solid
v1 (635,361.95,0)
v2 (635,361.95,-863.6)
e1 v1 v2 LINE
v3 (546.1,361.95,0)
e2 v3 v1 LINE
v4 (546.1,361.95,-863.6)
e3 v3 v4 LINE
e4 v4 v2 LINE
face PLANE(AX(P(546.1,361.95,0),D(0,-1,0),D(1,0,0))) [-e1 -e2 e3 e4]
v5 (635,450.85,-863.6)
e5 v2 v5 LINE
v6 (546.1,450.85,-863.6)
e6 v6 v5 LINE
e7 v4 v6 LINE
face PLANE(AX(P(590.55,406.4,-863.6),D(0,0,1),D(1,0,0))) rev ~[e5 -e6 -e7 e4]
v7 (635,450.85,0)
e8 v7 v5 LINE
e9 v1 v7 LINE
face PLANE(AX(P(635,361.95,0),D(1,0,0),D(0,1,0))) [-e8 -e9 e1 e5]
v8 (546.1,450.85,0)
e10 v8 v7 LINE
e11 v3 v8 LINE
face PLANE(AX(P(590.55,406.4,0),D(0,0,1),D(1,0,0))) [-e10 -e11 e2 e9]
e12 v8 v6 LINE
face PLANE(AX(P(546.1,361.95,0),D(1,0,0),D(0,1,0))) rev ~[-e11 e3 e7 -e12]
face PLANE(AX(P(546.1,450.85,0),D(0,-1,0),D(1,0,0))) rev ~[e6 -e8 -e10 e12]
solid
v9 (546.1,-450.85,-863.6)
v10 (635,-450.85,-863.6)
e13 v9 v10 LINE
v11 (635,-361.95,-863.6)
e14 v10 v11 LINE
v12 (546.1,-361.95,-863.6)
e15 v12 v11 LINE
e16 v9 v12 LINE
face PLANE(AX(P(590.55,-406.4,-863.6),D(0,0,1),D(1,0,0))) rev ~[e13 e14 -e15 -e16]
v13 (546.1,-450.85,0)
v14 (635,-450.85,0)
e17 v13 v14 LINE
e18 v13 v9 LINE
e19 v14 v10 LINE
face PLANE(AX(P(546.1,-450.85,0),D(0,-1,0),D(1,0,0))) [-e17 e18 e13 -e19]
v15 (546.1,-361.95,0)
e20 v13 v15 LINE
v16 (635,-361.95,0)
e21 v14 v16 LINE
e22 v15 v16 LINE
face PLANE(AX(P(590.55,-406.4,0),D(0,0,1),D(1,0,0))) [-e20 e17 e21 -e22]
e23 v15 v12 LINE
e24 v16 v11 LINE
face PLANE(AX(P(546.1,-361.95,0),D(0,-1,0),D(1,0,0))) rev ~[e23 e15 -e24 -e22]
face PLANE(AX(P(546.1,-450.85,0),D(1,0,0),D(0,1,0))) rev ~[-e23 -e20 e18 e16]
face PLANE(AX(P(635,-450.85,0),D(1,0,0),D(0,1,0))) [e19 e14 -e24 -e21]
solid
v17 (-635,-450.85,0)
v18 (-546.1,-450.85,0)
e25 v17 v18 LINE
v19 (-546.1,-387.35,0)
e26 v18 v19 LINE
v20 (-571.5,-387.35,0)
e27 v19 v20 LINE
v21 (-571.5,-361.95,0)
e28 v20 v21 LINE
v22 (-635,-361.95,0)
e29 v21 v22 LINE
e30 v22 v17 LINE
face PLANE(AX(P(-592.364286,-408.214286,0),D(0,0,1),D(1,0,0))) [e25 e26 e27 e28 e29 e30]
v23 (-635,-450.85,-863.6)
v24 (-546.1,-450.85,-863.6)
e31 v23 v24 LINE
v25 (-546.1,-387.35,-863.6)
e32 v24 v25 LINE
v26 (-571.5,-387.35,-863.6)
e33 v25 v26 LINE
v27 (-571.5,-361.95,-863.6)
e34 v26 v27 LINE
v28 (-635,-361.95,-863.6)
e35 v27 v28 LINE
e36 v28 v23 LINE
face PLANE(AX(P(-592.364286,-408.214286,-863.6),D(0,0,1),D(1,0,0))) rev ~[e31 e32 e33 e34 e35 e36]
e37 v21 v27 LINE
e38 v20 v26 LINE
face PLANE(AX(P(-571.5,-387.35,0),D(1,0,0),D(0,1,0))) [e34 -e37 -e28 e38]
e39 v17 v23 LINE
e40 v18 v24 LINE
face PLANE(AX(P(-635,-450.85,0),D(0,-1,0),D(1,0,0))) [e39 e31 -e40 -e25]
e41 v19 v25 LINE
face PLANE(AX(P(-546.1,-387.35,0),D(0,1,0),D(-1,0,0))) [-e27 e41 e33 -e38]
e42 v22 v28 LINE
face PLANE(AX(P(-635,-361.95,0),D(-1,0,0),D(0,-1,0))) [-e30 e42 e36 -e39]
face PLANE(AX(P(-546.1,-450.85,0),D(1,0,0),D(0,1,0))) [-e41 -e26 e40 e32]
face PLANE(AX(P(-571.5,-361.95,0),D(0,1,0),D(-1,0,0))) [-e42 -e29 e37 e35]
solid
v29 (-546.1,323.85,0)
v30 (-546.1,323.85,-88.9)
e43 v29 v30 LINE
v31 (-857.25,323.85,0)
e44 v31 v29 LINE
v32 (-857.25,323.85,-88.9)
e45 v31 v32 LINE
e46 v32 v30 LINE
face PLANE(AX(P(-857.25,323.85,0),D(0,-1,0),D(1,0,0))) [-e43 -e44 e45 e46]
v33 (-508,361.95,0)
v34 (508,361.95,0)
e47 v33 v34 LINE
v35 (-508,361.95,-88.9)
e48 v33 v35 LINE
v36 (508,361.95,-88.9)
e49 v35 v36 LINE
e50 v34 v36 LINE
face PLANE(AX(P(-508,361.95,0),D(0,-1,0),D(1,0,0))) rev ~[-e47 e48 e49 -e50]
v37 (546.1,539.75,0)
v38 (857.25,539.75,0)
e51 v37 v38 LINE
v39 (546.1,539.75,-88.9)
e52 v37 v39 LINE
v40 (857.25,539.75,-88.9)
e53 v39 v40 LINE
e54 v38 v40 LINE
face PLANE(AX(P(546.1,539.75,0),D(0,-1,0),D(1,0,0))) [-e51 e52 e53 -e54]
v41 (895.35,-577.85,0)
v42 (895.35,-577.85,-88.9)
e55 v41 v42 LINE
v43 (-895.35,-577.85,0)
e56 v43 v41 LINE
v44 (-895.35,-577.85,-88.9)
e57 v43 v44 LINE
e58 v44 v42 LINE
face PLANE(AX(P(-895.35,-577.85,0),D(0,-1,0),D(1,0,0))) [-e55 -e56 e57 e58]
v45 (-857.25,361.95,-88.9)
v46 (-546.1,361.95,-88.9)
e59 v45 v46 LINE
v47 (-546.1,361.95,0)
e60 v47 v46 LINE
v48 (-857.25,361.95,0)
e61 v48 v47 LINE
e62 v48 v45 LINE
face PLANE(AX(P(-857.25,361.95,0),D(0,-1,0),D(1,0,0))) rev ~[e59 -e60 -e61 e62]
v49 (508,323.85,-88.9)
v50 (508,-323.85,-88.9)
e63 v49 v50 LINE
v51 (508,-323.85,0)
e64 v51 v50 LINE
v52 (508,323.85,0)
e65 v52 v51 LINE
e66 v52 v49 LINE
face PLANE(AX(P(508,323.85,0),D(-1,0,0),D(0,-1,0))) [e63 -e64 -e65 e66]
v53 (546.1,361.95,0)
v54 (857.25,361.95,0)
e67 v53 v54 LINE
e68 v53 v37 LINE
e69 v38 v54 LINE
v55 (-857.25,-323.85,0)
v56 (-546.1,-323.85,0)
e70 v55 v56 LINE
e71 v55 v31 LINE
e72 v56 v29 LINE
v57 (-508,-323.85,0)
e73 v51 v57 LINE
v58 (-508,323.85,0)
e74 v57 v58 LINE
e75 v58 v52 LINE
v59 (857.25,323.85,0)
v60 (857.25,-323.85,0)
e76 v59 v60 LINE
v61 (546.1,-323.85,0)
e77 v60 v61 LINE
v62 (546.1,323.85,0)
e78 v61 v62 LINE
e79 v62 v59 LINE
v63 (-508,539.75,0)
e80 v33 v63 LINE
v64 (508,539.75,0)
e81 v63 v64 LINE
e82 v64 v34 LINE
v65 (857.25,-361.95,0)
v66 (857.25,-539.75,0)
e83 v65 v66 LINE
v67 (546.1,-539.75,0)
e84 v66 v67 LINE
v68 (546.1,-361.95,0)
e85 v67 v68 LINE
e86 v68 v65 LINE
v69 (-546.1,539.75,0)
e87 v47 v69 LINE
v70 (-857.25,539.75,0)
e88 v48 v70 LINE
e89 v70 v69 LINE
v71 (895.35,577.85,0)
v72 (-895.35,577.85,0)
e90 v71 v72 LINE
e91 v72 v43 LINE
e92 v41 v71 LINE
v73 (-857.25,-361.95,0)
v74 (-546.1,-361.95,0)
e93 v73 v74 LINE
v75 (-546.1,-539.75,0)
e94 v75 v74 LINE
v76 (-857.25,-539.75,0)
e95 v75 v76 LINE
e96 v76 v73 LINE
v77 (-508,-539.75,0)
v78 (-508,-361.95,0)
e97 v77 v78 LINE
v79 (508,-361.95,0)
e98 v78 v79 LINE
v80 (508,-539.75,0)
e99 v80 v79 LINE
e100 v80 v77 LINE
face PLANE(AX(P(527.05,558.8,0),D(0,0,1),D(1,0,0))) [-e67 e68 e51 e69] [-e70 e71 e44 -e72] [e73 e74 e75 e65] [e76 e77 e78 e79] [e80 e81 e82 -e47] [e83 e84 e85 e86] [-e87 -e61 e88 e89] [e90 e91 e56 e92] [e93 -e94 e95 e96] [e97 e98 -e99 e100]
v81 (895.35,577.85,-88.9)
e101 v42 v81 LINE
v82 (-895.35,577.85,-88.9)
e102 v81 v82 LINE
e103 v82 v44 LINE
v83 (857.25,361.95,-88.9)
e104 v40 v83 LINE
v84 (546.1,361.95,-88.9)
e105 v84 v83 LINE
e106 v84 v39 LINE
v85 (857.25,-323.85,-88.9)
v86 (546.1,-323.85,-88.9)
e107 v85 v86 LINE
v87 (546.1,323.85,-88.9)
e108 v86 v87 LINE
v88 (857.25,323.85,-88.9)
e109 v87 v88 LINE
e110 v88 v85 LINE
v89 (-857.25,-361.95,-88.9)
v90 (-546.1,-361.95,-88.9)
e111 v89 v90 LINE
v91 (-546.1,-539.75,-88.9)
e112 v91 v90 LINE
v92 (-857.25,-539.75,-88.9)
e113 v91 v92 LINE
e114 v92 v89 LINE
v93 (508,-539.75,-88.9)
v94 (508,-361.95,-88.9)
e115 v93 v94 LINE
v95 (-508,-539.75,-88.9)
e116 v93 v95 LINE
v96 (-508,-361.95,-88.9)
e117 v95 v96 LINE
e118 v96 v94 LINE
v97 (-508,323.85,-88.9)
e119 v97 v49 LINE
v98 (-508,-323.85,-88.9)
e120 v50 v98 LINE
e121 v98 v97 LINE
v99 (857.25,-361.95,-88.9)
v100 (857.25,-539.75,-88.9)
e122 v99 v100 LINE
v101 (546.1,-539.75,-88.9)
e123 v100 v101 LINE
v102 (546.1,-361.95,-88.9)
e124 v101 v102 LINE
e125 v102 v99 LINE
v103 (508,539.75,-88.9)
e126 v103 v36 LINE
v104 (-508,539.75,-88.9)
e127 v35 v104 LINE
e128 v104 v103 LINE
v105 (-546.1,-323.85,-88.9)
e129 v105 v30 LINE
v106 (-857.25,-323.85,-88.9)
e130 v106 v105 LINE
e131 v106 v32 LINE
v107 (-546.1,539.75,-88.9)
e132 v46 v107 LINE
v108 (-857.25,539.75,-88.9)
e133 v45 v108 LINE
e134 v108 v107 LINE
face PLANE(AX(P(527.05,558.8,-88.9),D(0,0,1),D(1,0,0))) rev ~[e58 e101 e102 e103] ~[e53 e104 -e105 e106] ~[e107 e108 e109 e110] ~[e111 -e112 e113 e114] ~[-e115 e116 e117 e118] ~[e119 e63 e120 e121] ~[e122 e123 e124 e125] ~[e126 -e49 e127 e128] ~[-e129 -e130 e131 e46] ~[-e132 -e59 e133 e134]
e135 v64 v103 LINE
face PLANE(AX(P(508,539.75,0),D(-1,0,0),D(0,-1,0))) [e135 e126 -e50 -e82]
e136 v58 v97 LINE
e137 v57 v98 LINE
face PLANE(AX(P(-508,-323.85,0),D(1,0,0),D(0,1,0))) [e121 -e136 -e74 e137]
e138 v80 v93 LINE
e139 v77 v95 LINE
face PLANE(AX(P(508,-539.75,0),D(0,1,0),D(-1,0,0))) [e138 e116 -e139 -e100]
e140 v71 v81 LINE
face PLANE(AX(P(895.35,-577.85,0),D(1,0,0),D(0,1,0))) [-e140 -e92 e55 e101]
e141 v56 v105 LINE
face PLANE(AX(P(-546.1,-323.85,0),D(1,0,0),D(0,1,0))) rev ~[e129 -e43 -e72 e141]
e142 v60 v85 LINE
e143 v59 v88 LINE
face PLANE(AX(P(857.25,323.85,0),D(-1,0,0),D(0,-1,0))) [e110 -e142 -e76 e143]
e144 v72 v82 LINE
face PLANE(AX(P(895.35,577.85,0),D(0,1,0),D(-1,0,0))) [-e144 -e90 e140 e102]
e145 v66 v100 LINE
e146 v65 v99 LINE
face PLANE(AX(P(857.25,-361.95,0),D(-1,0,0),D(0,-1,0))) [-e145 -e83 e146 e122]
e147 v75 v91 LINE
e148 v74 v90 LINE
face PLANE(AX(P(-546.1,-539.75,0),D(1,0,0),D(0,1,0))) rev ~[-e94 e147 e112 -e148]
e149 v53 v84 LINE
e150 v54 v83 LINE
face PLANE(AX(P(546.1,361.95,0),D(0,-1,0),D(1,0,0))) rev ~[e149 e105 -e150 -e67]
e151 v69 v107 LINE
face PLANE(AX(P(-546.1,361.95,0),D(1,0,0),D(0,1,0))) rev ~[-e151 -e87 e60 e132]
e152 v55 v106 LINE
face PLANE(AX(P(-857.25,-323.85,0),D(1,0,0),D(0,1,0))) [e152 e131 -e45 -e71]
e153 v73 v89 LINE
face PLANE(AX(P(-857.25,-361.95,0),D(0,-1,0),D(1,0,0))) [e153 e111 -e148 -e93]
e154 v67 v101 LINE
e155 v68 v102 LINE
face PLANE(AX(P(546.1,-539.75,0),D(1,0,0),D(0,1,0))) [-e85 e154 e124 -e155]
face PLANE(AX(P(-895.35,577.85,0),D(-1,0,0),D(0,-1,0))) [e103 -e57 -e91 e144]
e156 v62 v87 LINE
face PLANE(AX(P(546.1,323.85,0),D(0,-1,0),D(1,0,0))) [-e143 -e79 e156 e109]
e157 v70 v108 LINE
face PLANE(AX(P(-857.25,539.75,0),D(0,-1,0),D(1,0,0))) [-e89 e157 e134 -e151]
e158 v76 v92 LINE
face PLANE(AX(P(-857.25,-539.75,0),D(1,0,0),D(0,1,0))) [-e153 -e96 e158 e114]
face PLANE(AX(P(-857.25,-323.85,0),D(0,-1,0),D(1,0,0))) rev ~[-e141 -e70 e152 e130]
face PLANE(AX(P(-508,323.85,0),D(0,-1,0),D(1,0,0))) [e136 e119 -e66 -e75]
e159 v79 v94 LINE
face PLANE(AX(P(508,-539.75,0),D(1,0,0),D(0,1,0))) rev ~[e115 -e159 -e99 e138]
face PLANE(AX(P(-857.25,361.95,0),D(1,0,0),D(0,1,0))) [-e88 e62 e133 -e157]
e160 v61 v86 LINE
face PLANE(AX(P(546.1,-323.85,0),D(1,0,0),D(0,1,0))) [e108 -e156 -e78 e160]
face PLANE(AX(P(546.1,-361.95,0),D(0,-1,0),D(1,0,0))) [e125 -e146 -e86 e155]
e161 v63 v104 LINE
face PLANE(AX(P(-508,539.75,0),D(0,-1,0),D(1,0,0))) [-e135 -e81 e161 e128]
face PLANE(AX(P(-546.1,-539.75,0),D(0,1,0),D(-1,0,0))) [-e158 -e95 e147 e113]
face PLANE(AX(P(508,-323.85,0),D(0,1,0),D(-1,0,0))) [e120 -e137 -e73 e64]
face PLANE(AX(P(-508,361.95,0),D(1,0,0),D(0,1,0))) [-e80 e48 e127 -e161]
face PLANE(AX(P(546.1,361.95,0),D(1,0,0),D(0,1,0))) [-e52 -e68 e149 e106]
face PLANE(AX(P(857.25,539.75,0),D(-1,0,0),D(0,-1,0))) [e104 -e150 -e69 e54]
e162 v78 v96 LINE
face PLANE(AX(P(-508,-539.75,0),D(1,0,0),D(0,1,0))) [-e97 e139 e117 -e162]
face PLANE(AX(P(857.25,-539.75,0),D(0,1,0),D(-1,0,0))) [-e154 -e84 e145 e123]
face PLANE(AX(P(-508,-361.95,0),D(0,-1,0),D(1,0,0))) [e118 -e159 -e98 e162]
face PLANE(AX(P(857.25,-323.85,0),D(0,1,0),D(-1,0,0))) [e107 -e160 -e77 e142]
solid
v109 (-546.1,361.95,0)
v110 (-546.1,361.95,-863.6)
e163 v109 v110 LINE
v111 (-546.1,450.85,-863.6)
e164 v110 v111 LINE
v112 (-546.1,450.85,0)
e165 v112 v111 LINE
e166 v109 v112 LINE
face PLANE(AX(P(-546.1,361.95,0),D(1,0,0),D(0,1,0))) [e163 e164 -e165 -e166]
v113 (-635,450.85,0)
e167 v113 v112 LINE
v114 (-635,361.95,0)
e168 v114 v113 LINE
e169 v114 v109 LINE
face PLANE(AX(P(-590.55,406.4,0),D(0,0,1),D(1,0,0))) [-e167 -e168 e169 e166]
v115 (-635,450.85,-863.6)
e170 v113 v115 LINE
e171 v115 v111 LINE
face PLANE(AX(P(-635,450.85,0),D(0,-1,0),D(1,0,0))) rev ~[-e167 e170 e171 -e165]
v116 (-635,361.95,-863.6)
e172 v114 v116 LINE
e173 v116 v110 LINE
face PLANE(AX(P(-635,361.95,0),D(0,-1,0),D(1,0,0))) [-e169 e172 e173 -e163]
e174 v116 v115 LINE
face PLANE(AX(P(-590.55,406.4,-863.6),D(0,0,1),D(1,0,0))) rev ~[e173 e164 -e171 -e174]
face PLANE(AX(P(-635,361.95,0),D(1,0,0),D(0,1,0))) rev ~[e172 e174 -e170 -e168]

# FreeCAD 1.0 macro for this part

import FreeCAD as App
import Part
import Sketcher
from FreeCAD import Vector
Q = App.Units.Quantity


def add_polygon(sketch, points):
    """Adds a closed chain of lines whose ends are joined by coincident constraints."""
    first, n = sketch.GeometryCount, len(points)
    for a, b in zip(points, points[1:] + points[:1]):
        sketch.addGeometry(Part.LineSegment(App.Vector(*a, 0), App.Vector(*b, 0)), False)
    for i in range(n):
        sketch.addConstraint(Sketcher.Constraint("Coincident", first + i, 2, first + (i + 1) % n, 1))

doc = App.newDocument("Part")
body = doc.addObject("PartDesign::Body", "Body")

sketch1 = body.newObject("Sketcher::SketchObject", "Sketch")
sketch1.AttachmentSupport = (doc.getObject("XY_Plane"), [""])
sketch1.MapMode = "FlatFace"
add_polygon(sketch1, [(895.35, -577.85), (895.35, 577.85), (-895.35, 577.85), (-895.35, -577.85)])
add_polygon(sketch1, [(-857.25, -361.95), (-546.1, -361.95), (-546.1, -539.75), (-857.25, -539.75)])
add_polygon(sketch1, [(-508, -361.95), (508, -361.95), (508, -539.75), (-508, -539.75)])
add_polygon(sketch1, [(-546.1, 323.85), (-546.1, -323.85), (-857.25, -323.85), (-857.25, 323.85)])
add_polygon(sketch1, [(-546.1, 361.95), (-857.25, 361.95), (-857.25, 539.75), (-546.1, 539.75)])
add_polygon(sketch1, [(546.1, -539.75), (546.1, -361.95), (857.25, -361.95), (857.25, -539.75)])
add_polygon(sketch1, [(-508, -323.85), (-508, 323.85), (508, 323.85), (508, -323.85)])
add_polygon(sketch1, [(-508, 361.95), (-508, 539.75), (508, 539.75), (508, 361.95)])
add_polygon(sketch1, [(546.1, 539.75), (857.25, 539.75), (857.25, 361.95), (546.1, 361.95)])
add_polygon(sketch1, [(857.25, 323.85), (857.25, -323.85), (546.1, -323.85), (546.1, 323.85)])
sketch1.addConstraint([
    Sketcher.Constraint("Vertical", 0),
    Sketcher.Constraint("Horizontal", 1),
    Sketcher.Constraint("Vertical", 2),
    Sketcher.Constraint("Horizontal", 3),
    Sketcher.Constraint("Horizontal", 4),
    Sketcher.Constraint("Vertical", 5),
    Sketcher.Constraint("Horizontal", 6),
    Sketcher.Constraint("Vertical", 7),
    Sketcher.Constraint("Horizontal", 8),
    Sketcher.Constraint("Vertical", 9),
    Sketcher.Constraint("Horizontal", 10),
    Sketcher.Constraint("Vertical", 11),
    Sketcher.Constraint("Vertical", 12),
    Sketcher.Constraint("Horizontal", 13),
    Sketcher.Constraint("Vertical", 14),
    Sketcher.Constraint("Horizontal", 15),
    Sketcher.Constraint("Horizontal", 16),
    Sketcher.Constraint("Vertical", 17),
    Sketcher.Constraint("Horizontal", 18),
    Sketcher.Constraint("Vertical", 19),
    Sketcher.Constraint("Vertical", 20),
    Sketcher.Constraint("Horizontal", 21),
    Sketcher.Constraint("Vertical", 22),
    Sketcher.Constraint("Horizontal", 23),
    Sketcher.Constraint("Vertical", 24),
    Sketcher.Constraint("Horizontal", 25),
    Sketcher.Constraint("Vertical", 26),
    Sketcher.Constraint("Horizontal", 27),
    Sketcher.Constraint("Vertical", 28),
    Sketcher.Constraint("Horizontal", 29),
    Sketcher.Constraint("Vertical", 30),
    Sketcher.Constraint("Horizontal", 31),
    Sketcher.Constraint("Horizontal", 32),
    Sketcher.Constraint("Vertical", 33),
    Sketcher.Constraint("Horizontal", 34),
    Sketcher.Constraint("Vertical", 35),
    Sketcher.Constraint("Vertical", 36),
    Sketcher.Constraint("Horizontal", 37),
    Sketcher.Constraint("Vertical", 38),
    Sketcher.Constraint("Horizontal", 39),
    Sketcher.Constraint("Symmetric", 0, 2, 2, 2, -1, 1),
    Sketcher.Constraint("Symmetric", 19, 2, 20, 2, -1, 1),
    Sketcher.Constraint("Symmetric", 17, 2, 22, 2, -1, 1),
    Sketcher.Constraint("Symmetric", 24, 2, 26, 2, -1, 1),
    Sketcher.Constraint("Symmetric", 9, 2, 28, 2, -1, 1),
    Sketcher.Constraint("Symmetric", 11, 2, 30, 2, -1, 1),
    Sketcher.Constraint("Symmetric", 6, 2, 32, 2, -1, 1),
    Sketcher.Constraint("Symmetric", 4, 2, 34, 2, -1, 1),
    Sketcher.Constraint("Symmetric", 14, 2, 36, 2, -1, 1),
    Sketcher.Constraint("Symmetric", 12, 2, 38, 2, -1, 1),
    Sketcher.Constraint("Symmetric", 4, 2, 20, 2, -2),
    Sketcher.Constraint("Symmetric", 6, 2, 22, 2, -2),
    Sketcher.Constraint("Horizontal", 7, 2, 8, 2),
    Sketcher.Constraint("Horizontal", 6, 2, 9, 2),
    Sketcher.Constraint("Horizontal", 15, 2, 24, 2),
    Sketcher.Constraint("Horizontal", 13, 2, 26, 2),
    Sketcher.Constraint("Vertical", 5, 2, 12, 2),
    Sketcher.Constraint("Vertical", 7, 2, 13, 2),
    Sketcher.Constraint("Vertical", 11, 2, 24, 2),
    Sketcher.Constraint("Vertical", 9, 2, 25, 2),
    Sketcher.Constraint("DistanceX", 8, 1, 8, 2, Q("40 in")),
    Sketcher.Constraint("DistanceY", 5, 2, 5, 1, Q("7 in")),
    Sketcher.Constraint("DistanceX", 1, 2, 1, 1, Q("70.5 in")),
    Sketcher.Constraint("DistanceY", 0, 1, 0, 2, Q("45.5 in")),
    Sketcher.Constraint("DistanceY", 12, 2, 12, 1, Q("25.5 in")),
    Sketcher.Constraint("DistanceY", 4, 2, 1, 2, Q("37 in")),
    Sketcher.Constraint("DistanceX", 6, 2, 3, 2, Q("69 in")),
    Sketcher.Constraint("DistanceX", 4, 1, 4, 2, Q("12.25 in")),
])
pad1 = body.newObject("PartDesign::Pad", "Pad")
pad1.Profile = sketch1
pad1.Length = Q("3.5 in")
pad1.Reversed = True
body2 = doc.addObject("PartDesign::Body", "Body001")

sketch2 = body2.newObject("Sketcher::SketchObject", "Sketch001")
sketch2.AttachmentSupport = (doc.getObject("XY_Plane001"), [""])
sketch2.MapMode = "FlatFace"
add_polygon(sketch2, [(-571.5, -387.35), (-571.5, -361.95), (-635, -361.95), (-635, -450.85), (-546.1, -450.85), (-546.1, -387.35)])
sketch2.addConstraint([
    Sketcher.Constraint("Vertical", 0),
    Sketcher.Constraint("Horizontal", 1),
    Sketcher.Constraint("Vertical", 2),
    Sketcher.Constraint("Horizontal", 3),
    Sketcher.Constraint("Vertical", 4),
    Sketcher.Constraint("Horizontal", 5),
    Sketcher.Constraint("Equal", 5, 0),
    Sketcher.Constraint("Equal", 3, 2),
    Sketcher.Constraint("DistanceX", 5, 2, 5, 1, Q("1 in")),
    Sketcher.Constraint("DistanceX", 1, 2, 1, 1, Q("2.5 in")),
    Sketcher.Constraint("DistanceX", 1, 2, -1, 1, Q("25 in")),
    Sketcher.Constraint("DistanceY", 0, 2, -1, 1, Q("14.25 in")),
])
pad2 = body2.newObject("PartDesign::Pad", "Pad001")
pad2.Profile = sketch2
pad2.Length = Q("34 in")
pad2.Reversed = True
body3 = doc.addObject("PartDesign::Body", "Body002")

sketch3 = body3.newObject("Sketcher::SketchObject", "Sketch002")
sketch3.AttachmentSupport = (doc.getObject("XY_Plane002"), [""])
sketch3.MapMode = "FlatFace"
add_polygon(sketch3, [(546.1, -361.95), (546.1, -450.85), (635, -450.85), (635, -361.95)])
sketch3.addConstraint([
    Sketcher.Constraint("Vertical", 0),
    Sketcher.Constraint("Horizontal", 1),
    Sketcher.Constraint("Vertical", 2),
    Sketcher.Constraint("Horizontal", 3),
    Sketcher.Constraint("Equal", 3, 0),
    Sketcher.Constraint("DistanceX", 1, 1, 1, 2, Q("3.5 in")),
    Sketcher.Constraint("DistanceX", -1, 1, 1, 2, Q("25 in")),
    Sketcher.Constraint("DistanceY", 0, 2, -1, 1, Q("17.75 in")),
])
pad3 = body3.newObject("PartDesign::Pad", "Pad002")
pad3.Profile = sketch3
pad3.Length = Q("34 in")
pad3.Reversed = True
body4 = doc.addObject("PartDesign::Body", "Body003")

sketch4 = body4.newObject("Sketcher::SketchObject", "Sketch003")
sketch4.AttachmentSupport = (doc.getObject("XY_Plane003"), [""])
sketch4.MapMode = "FlatFace"
add_polygon(sketch4, [(546.1, 450.85), (546.1, 361.95), (635, 361.95), (635, 450.85)])
sketch4.addConstraint([
    Sketcher.Constraint("Vertical", 0),
    Sketcher.Constraint("Horizontal", 1),
    Sketcher.Constraint("Vertical", 2),
    Sketcher.Constraint("Horizontal", 3),
    Sketcher.Constraint("Equal", 3, 0),
    Sketcher.Constraint("DistanceX", 1, 1, 1, 2, Q("3.5 in")),
    Sketcher.Constraint("DistanceX", -1, 1, 1, 2, Q("25 in")),
    Sketcher.Constraint("DistanceY", -1, 1, 0, 2, Q("14.25 in")),
])
pad4 = body4.newObject("PartDesign::Pad", "Pad003")
pad4.Profile = sketch4
pad4.Length = Q("34 in")
pad4.Reversed = True
body5 = doc.addObject("PartDesign::Body", "Body004")

sketch5 = body5.newObject("Sketcher::SketchObject", "Sketch004")
sketch5.AttachmentSupport = (doc.getObject("XY_Plane004"), [""])
sketch5.MapMode = "FlatFace"
add_polygon(sketch5, [(-635, 450.85), (-635, 361.95), (-546.1, 361.95), (-546.1, 450.85)])
sketch5.addConstraint([
    Sketcher.Constraint("Vertical", 0),
    Sketcher.Constraint("Horizontal", 1),
    Sketcher.Constraint("Vertical", 2),
    Sketcher.Constraint("Horizontal", 3),
    Sketcher.Constraint("Equal", 3, 0),
    Sketcher.Constraint("DistanceX", 1, 1, 1, 2, Q("3.5 in")),
    Sketcher.Constraint("DistanceX", 0, 2, -1, 1, Q("25 in")),
    Sketcher.Constraint("DistanceY", -1, 1, 0, 2, Q("14.25 in")),
])
pad5 = body5.newObject("PartDesign::Pad", "Pad004")
pad5.Profile = sketch5
pad5.Length = Q("34 in")
pad5.Reversed = True

doc.recompute()
